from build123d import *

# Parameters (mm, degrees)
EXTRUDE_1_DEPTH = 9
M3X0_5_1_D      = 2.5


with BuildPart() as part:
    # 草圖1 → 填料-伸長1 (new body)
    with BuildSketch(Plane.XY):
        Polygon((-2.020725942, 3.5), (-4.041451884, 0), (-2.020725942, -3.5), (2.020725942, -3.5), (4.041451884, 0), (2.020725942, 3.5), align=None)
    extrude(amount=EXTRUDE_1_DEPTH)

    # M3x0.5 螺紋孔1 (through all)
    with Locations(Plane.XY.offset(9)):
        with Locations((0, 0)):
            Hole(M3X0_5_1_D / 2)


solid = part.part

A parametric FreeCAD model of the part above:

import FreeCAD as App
import Part
import Sketcher

V = App.Vector
Q = App.Units.Quantity


def add_polygon(sketch, points):
    """Adds a closed chain of lines whose ends are joined by coincident constraints."""
    first, n = sketch.GeometryCount, len(points)
    for a, b in zip(points, points[1:] + points[:1]):
        sketch.addGeometry(Part.LineSegment(App.Vector(*a, 0), App.Vector(*b, 0)), False)
    for i in range(n):
        sketch.addConstraint(Sketcher.Constraint("Coincident", first + i, 2, first + (i + 1) % n, 1))

doc = App.newDocument("Part")
body = doc.addObject("PartDesign::Body", "Body")

sketch1 = body.newObject("Sketcher::SketchObject", "Sketch")
sketch1.AttachmentSupport = (doc.getObject("XY_Plane"), [""])
sketch1.MapMode = "FlatFace"
add_polygon(sketch1, [(-2.020726, 3.5), (-4.041452, 0), (-2.020726, -3.5), (2.020726, -3.5), (4.041452, 0), (2.020726, 3.5)])
sketch1.addConstraint(Sketcher.Constraint("Horizontal", 2))
sketch1.addConstraint(Sketcher.Constraint("Horizontal", 5))
sketch1.addConstraint(Sketcher.Constraint("Symmetric", 0, 2, 3, 2, -1, 1))
sketch1.addConstraint(Sketcher.Constraint("Symmetric", 1, 2, 4, 2, -1, 1))
sketch1.addConstraint(Sketcher.Constraint("PointOnObject", 0, 2, -1))
sketch1.addConstraint(Sketcher.Constraint("Parallel", 0, 3))
sketch1.addConstraint(Sketcher.Constraint("Vertical", 2, 2, 4, 2))
sketch1.addConstraint(Sketcher.Constraint("Angle", 0, Q("-120 deg")))
sketch1.addConstraint(Sketcher.Constraint("DistanceY", 2, 2, 4, 2, 7.0))
sketch1.addConstraint(Sketcher.Constraint("DistanceX", 2, 1, 2, 2, 4.041452))
pad1 = body.newObject("PartDesign::Pad", "Pad")
pad1.Profile = sketch1
pad1.Length = 9

sketch2 = body.newObject("Sketcher::SketchObject", "Sketch001")
sketch2.AttachmentSupport = (doc.getObject("XY_Plane"), [""])
sketch2.MapMode = "FlatFace"
sketch2.AttachmentOffset = App.Placement(V(0, 0, 9), App.Rotation())
sketch2.addGeometry(Part.Circle(V(0, 0, 0), V(0, 0, 1), 1.25), False)
sketch2.addConstraint(Sketcher.Constraint("Coincident", 0, 3, -1, 1))
sketch2.addConstraint(Sketcher.Constraint("Diameter", 0, 2.5))
doc.recompute()
hole = body.newObject("PartDesign::Hole", "Hole")
hole.Profile = sketch2
hole.ThreadType = "None"
hole.Diameter = 2.5
hole.DepthType = "ThroughAll"

doc.recompute()
